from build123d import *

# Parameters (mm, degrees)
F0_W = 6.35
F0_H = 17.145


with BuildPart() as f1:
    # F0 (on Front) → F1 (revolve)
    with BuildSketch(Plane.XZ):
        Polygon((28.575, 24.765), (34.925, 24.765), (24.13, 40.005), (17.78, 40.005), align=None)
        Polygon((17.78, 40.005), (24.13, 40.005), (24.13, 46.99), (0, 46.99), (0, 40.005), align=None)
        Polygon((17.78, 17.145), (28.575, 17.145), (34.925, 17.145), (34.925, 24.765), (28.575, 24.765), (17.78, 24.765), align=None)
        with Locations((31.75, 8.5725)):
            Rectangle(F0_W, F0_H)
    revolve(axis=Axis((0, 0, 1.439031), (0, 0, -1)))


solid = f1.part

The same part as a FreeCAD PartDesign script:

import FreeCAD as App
import Part
import Sketcher
Q = App.Units.Quantity


def add_polygon(sketch, points):
    """Adds a closed chain of lines whose ends are joined by coincident constraints."""
    first, n = sketch.GeometryCount, len(points)
    for a, b in zip(points, points[1:] + points[:1]):
        sketch.addGeometry(Part.LineSegment(App.Vector(*a, 0), App.Vector(*b, 0)), False)
    for i in range(n):
        sketch.addConstraint(Sketcher.Constraint("Coincident", first + i, 2, first + (i + 1) % n, 1))

doc = App.newDocument("Part")
params = doc.addObject("Spreadsheet::Sheet", "Params")
for row, (alias, value) in enumerate([
    ("sketch1_width", "0.7 in"),
    ("sketch1_height", "0.3 in"),
    ("sketch1_width2", "0.95 in"),
    ("sketch1_width3", "0.425 in"),
    ("sketch1_height2", "0.275 in"),
    ("revolution_angle", "360 deg"),
], start=1):
    params.set(f"A{row}", alias)
    params.set(f"B{row}", "=" + value)
    params.setAlias(f"B{row}", alias)

body = doc.addObject("PartDesign::Body", "Body")

# Sketch on XZ plane
sketch1 = body.newObject("Sketcher::SketchObject", "Sketch")
sketch1.AttachmentSupport = (doc.getObject("XZ_Plane"), [""])
sketch1.MapMode = "FlatFace"
add_polygon(sketch1, [(35, 25), (24, 40), (24, 47), (0, 47), (0, 40), (18, 40), (29, 25), (18, 25), (18, 17), (29, 17), (29, 0), (35, 0)])  # lines 0-11
sketch1.addConstraint(Sketcher.Constraint("Vertical", 1))
sketch1.addConstraint(Sketcher.Constraint("Horizontal", 2))
sketch1.addConstraint(Sketcher.Constraint("Vertical", 3))
sketch1.addConstraint(Sketcher.Constraint("Horizontal", 4))
sketch1.addConstraint(Sketcher.Constraint("Horizontal", 6))
sketch1.addConstraint(Sketcher.Constraint("Vertical", 7))
sketch1.addConstraint(Sketcher.Constraint("Horizontal", 8))
sketch1.addConstraint(Sketcher.Constraint("Vertical", 9))
sketch1.addConstraint(Sketcher.Constraint("Horizontal", 10))
sketch1.addConstraint(Sketcher.Constraint("Vertical", 11))
sketch1.addConstraint(Sketcher.Constraint("PointOnObject", 2, 2, -2))
sketch1.addConstraint(Sketcher.Constraint("PointOnObject", 9, 2, -1))
sketch1.addConstraint(Sketcher.Constraint("Parallel", 0, 5))
sketch1.addConstraint(Sketcher.Constraint("Horizontal", 0, 2, 3, 2))
sketch1.addConstraint(Sketcher.Constraint("Horizontal", 6, 2, 11, 2))
sketch1.addConstraint(Sketcher.Constraint("Vertical", 4, 2, 6, 2))
sketch1.addConstraint(Sketcher.Constraint("Vertical", 5, 2, 8, 2))
sketch1.addConstraint(Sketcher.Constraint("DistanceX", 4, 1, 4, 2, Q("0.7 in")))
sketch1.addConstraint(Sketcher.Constraint("DistanceY", 7, 2, 7, 1, Q("0.3 in")))
sketch1.addConstraint(Sketcher.Constraint("DistanceX", 2, 2, 2, 1, Q("0.95 in")))
sketch1.addConstraint(Sketcher.Constraint("DistanceY", 5, 2, 0, 2, Q("0.6 in")))
sketch1.addConstraint(Sketcher.Constraint("DistanceX", 6, 2, 6, 1, Q("0.425 in")))
sketch1.addConstraint(Sketcher.Constraint("DistanceY", 1, 1, 1, 2, Q("0.275 in")))
sketch1.addConstraint(Sketcher.Constraint("DistanceY", 9, 2, 9, 1, Q("0.675 in")))
sketch1.setExpression("Constraints[29]", "Params.sketch1_width")
sketch1.setExpression("Constraints[30]", "Params.sketch1_height")
sketch1.setExpression("Constraints[31]", "Params.sketch1_width2")
sketch1.setExpression("Constraints[33]", "Params.sketch1_width3")
sketch1.setExpression("Constraints[34]", "Params.sketch1_height2")
revolution = body.newObject("PartDesign::Revolution", "Revolution")
revolution.Profile = sketch1
revolution.ReferenceAxis = (sketch1, ["V_Axis"])
revolution.setExpression("Angle", "Params.revolution_angle")

doc.recompute()
